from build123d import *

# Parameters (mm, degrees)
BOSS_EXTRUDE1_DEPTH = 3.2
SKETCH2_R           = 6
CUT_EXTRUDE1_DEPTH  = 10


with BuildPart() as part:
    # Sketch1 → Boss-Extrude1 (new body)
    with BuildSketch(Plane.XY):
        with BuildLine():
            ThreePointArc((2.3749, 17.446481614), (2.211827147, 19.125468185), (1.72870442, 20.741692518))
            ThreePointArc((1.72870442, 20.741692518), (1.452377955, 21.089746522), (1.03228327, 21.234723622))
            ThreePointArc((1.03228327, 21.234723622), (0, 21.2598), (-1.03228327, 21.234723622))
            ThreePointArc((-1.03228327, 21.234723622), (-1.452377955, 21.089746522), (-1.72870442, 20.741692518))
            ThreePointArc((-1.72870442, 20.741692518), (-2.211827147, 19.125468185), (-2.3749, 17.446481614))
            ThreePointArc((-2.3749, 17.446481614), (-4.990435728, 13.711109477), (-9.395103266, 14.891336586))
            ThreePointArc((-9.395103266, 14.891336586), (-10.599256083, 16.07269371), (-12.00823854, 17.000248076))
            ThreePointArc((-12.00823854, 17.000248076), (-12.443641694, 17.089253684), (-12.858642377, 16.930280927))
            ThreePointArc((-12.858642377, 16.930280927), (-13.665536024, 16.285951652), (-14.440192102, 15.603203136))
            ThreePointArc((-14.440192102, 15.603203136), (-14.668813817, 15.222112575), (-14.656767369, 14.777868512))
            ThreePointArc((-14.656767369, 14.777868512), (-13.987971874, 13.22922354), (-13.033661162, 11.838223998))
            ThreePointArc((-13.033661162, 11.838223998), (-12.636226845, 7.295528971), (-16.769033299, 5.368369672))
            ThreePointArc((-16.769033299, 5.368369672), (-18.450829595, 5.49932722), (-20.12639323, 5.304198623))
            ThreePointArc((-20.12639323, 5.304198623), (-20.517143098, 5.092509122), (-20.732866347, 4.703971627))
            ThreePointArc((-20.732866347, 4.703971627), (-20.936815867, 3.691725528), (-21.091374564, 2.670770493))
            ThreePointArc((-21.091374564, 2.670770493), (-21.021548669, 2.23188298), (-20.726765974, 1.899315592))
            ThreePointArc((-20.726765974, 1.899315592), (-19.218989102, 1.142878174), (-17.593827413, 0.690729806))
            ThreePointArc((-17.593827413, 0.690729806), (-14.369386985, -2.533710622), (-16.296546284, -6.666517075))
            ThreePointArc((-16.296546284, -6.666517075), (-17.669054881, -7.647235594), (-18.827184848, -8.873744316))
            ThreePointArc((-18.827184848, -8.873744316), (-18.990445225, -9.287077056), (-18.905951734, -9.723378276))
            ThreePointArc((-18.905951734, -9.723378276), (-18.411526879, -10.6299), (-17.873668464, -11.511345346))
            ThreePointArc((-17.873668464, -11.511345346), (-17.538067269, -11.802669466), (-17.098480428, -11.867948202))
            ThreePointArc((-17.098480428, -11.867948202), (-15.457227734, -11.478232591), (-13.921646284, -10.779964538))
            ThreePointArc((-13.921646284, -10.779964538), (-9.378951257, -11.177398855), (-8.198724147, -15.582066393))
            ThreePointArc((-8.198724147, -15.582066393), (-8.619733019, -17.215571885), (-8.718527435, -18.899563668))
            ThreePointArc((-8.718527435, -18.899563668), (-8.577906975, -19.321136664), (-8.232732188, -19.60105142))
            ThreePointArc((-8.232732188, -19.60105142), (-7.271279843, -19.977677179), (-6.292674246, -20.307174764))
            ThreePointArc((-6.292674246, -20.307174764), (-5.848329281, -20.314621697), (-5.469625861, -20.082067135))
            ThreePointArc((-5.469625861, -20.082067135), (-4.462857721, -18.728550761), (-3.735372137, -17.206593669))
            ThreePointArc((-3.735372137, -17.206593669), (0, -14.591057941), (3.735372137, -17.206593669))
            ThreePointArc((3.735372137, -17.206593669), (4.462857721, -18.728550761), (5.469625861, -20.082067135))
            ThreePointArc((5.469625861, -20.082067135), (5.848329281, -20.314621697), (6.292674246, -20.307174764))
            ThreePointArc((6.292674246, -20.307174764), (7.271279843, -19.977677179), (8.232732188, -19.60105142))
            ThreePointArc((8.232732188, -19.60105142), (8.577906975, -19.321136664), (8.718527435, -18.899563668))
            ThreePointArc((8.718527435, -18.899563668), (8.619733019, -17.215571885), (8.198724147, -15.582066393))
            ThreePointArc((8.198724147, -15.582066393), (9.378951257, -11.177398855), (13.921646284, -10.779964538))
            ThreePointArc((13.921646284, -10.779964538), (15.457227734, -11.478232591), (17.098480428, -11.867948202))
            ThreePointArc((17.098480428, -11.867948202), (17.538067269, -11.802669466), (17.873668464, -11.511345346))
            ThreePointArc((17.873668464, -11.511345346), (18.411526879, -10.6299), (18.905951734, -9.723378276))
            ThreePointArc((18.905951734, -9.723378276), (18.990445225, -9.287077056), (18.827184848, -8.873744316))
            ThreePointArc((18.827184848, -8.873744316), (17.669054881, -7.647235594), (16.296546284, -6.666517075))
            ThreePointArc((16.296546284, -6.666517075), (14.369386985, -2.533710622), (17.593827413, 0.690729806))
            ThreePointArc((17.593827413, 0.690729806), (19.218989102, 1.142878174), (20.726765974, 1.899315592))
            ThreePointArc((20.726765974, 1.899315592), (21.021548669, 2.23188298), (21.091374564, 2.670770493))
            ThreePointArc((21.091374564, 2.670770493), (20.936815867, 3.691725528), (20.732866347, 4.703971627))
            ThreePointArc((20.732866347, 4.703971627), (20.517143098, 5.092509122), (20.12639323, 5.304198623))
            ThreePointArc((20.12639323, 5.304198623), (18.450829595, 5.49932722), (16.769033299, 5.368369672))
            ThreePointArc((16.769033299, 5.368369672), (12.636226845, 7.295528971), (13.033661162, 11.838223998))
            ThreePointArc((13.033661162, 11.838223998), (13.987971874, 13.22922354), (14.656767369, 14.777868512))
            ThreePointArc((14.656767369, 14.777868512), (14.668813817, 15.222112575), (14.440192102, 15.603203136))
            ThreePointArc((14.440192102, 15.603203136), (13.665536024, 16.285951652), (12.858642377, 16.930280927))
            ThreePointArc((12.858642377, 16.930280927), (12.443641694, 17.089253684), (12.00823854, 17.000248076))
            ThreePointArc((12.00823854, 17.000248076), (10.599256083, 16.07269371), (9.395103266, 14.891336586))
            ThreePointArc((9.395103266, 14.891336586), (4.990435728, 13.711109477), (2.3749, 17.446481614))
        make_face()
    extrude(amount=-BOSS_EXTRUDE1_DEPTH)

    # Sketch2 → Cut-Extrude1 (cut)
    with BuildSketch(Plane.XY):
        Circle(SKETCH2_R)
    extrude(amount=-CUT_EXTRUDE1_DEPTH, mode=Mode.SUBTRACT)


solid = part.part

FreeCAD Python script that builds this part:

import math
import FreeCAD as App
import Part
import Sketcher
Q = App.Units.Quantity

doc = App.newDocument("Part")
body = doc.addObject("PartDesign::Body", "Body")

sketch1 = doc.addObject("Sketcher::SketchObject", "Sketch")
body.addObject(sketch1)
sketch1.AttachmentSupport = (doc.XY_Plane, [""])
sketch1.MapMode = "FlatFace"
sketch1.addGeometry(Part.ArcOfCircle(Part.Circle(App.Vector(-6.35, 17.446482, 0), App.Vector(0, 0, 1), 8.7249), math.radians(0), math.radians(22.189984)), False)
sketch1.addGeometry(Part.ArcOfCircle(Part.Circle(App.Vector(0.993742, 20.44191, 0), App.Vector(0, 0, 1), 0.79375), math.radians(22.189984), math.radians(87.216872)), False)
sketch1.addGeometry(Part.ArcOfCircle(Part.Circle(App.Vector(0, 0, 0), App.Vector(0, 0, 1), 21.2598), math.radians(87.216872), math.radians(92.783128)), False)
sketch1.addGeometry(Part.ArcOfCircle(Part.Circle(App.Vector(-0.993742, 20.44191, 0), App.Vector(0, 0, 1), 0.79375), math.radians(92.783128), math.radians(157.810016)), False)
sketch1.addGeometry(Part.ArcOfCircle(Part.Circle(App.Vector(6.35, 17.446482, 0), App.Vector(0, 0, 1), 8.7249), math.radians(157.810016), math.radians(180)), False)
sketch1.addGeometry(Part.ArcOfCircle(Part.Circle(App.Vector(-6.35, 17.446482, 0), App.Vector(0, 0, 1), 3.9751), math.radians(-140), math.radians(0)), False)
sketch1.addGeometry(Part.ArcOfCircle(Part.Circle(App.Vector(-16.078764, 9.283079, 0), App.Vector(0, 0, 1), 8.7249), math.radians(40), math.radians(62.189984)), False)
sketch1.addGeometry(Part.ArcOfCircle(Part.Circle(App.Vector(-12.378556, 16.298177, 0), App.Vector(0, 0, 1), 0.79375), math.radians(62.189984), math.radians(127.216872)), False)
sketch1.addGeometry(Part.ArcOfCircle(Part.Circle(App.Vector(0, 0, 0), App.Vector(0, 0, 1), 21.2598), math.radians(127.216872), math.radians(132.783128)), False)
sketch1.addGeometry(Part.ArcOfCircle(Part.Circle(App.Vector(-13.901057, 15.020646, 0), App.Vector(0, 0, 1), 0.79375), math.radians(132.783128), math.radians(197.810016)), False)
sketch1.addGeometry(Part.ArcOfCircle(Part.Circle(App.Vector(-6.35, 17.446482, 0), App.Vector(0, 0, 1), 8.7249), math.radians(-162.189984), math.radians(-140)), False)
sketch1.addGeometry(Part.ArcOfCircle(Part.Circle(App.Vector(-16.078764, 9.283079, 0), App.Vector(0, 0, 1), 3.9751), math.radians(-100), math.radians(40)), False)
sketch1.addGeometry(Part.ArcOfCircle(Part.Circle(App.Vector(-18.284096, -3.22398, 0), App.Vector(0, 0, 1), 8.7249), math.radians(80), math.radians(102.189984)), False)
sketch1.addGeometry(Part.ArcOfCircle(Part.Circle(App.Vector(-19.95879, 4.528345, 0), App.Vector(0, 0, 1), 0.79375), math.radians(102.189984), math.radians(167.216872)), False)
sketch1.addGeometry(Part.ArcOfCircle(Part.Circle(App.Vector(0, 0, 0), App.Vector(0, 0, 1), 21.2598), math.radians(167.216872), math.radians(172.783128)), False)
sketch1.addGeometry(Part.ArcOfCircle(Part.Circle(App.Vector(-20.303913, 2.571055, 0), App.Vector(0, 0, 1), 0.79375), math.radians(172.783128), math.radians(237.810016)), False)
sketch1.addGeometry(Part.ArcOfCircle(Part.Circle(App.Vector(-16.078764, 9.283079, 0), App.Vector(0, 0, 1), 8.7249), math.radians(-122.189984), math.radians(-100)), False)
sketch1.addGeometry(Part.ArcOfCircle(Part.Circle(App.Vector(-18.284096, -3.223979, 0), App.Vector(0, 0, 1), 3.9751), math.radians(-60), math.radians(80)), False)
sketch1.addGeometry(Part.ArcOfCircle(Part.Circle(App.Vector(-11.934096, -14.222502, 0), App.Vector(0, 0, 1), 8.7249), math.radians(120), math.radians(142.189984)), False)
sketch1.addGeometry(Part.ArcOfCircle(Part.Circle(App.Vector(-18.200084, -9.360349, 0), App.Vector(0, 0, 1), 0.79375), math.radians(142.189984), math.radians(207.216872)), False)
sketch1.addGeometry(Part.ArcOfCircle(Part.Circle(App.Vector(0, 0, 0), App.Vector(0, 0, 1), 21.2598), math.radians(-152.783128), math.radians(-147.216872)), False)
sketch1.addGeometry(Part.ArcOfCircle(Part.Circle(App.Vector(-17.206342, -11.081561, 0), App.Vector(0, 0, 1), 0.79375), math.radians(-147.216872), math.radians(-82.189984)), False)
sketch1.addGeometry(Part.ArcOfCircle(Part.Circle(App.Vector(-18.284096, -3.22398, 0), App.Vector(0, 0, 1), 8.7249), math.radians(-82.189984), math.radians(-60)), False)
sketch1.addGeometry(Part.ArcOfCircle(Part.Circle(App.Vector(-11.934096, -14.222502, 0), App.Vector(0, 0, 1), 3.9751), math.radians(-20), math.radians(120)), False)
sketch1.addGeometry(Part.ArcOfCircle(Part.Circle(App.Vector(0, -18.566158, 0), App.Vector(0, 0, 1), 8.7249), math.radians(160), math.radians(182.189984)), False)
sketch1.addGeometry(Part.ArcOfCircle(Part.Circle(App.Vector(-7.925357, -18.869232, 0), App.Vector(0, 0, 1), 0.79375), math.radians(-177.810016), math.radians(-112.783128)), False)
sketch1.addGeometry(Part.ArcOfCircle(Part.Circle(App.Vector(0, 0.000001, 0), App.Vector(0, 0, 1), 21.259801), math.radians(-112.783128), math.radians(-107.216872)), False)
sketch1.addGeometry(Part.ArcOfCircle(Part.Circle(App.Vector(-6.057733, -19.548992, 0), App.Vector(0, 0, 1), 0.79375), math.radians(-107.216872), math.radians(-42.189984)), False)
sketch1.addGeometry(Part.ArcOfCircle(Part.Circle(App.Vector(-11.934096, -14.222502, 0), App.Vector(0, 0, 1), 8.7249), math.radians(-42.189984), math.radians(-20)), False)
sketch1.addGeometry(Part.ArcOfCircle(Part.Circle(App.Vector(0, -18.566158, 0), App.Vector(0, 0, 1), 3.9751), math.radians(20), math.radians(160)), False)
sketch1.addGeometry(Part.ArcOfCircle(Part.Circle(App.Vector(11.934096, -14.222502, 0), App.Vector(0, 0, 1), 8.7249), math.radians(-160), math.radians(-137.810016)), False)
sketch1.addGeometry(Part.ArcOfCircle(Part.Circle(App.Vector(6.057733, -19.548992, 0), App.Vector(0, 0, 1), 0.79375), math.radians(-137.810016), math.radians(-72.783128)), False)
sketch1.addGeometry(Part.ArcOfCircle(Part.Circle(App.Vector(0, 0.000001, 0), App.Vector(0, 0, 1), 21.259801), math.radians(-72.783128), math.radians(-67.216872)), False)
sketch1.addGeometry(Part.ArcOfCircle(Part.Circle(App.Vector(7.925357, -18.869232, 0), App.Vector(0, 0, 1), 0.79375), math.radians(-67.216872), math.radians(-2.189984)), False)
sketch1.addGeometry(Part.ArcOfCircle(Part.Circle(App.Vector(0, -18.566158, 0), App.Vector(0, 0, 1), 8.7249), math.radians(-2.189984), math.radians(20)), False)
sketch1.addGeometry(Part.ArcOfCircle(Part.Circle(App.Vector(11.934096, -14.222502, 0), App.Vector(0, 0, 1), 3.9751), math.radians(60), math.radians(200)), False)
sketch1.addGeometry(Part.ArcOfCircle(Part.Circle(App.Vector(18.284096, -3.22398, 0), App.Vector(0, 0, 1), 8.7249), math.radians(-120), math.radians(-97.810016)), False)
sketch1.addGeometry(Part.ArcOfCircle(Part.Circle(App.Vector(17.206342, -11.081561, 0), App.Vector(0, 0, 1), 0.79375), math.radians(-97.810016), math.radians(-32.783128)), False)
sketch1.addGeometry(Part.ArcOfCircle(Part.Circle(App.Vector(0, 0, 0), App.Vector(0, 0, 1), 21.2598), math.radians(-32.783128), math.radians(-27.216872)), False)
sketch1.addGeometry(Part.ArcOfCircle(Part.Circle(App.Vector(18.200084, -9.360349, 0), App.Vector(0, 0, 1), 0.79375), math.radians(-27.216872), math.radians(37.810016)), False)
sketch1.addGeometry(Part.ArcOfCircle(Part.Circle(App.Vector(11.934096, -14.222502, 0), App.Vector(0, 0, 1), 8.7249), math.radians(37.810016), math.radians(60)), False)
sketch1.addGeometry(Part.ArcOfCircle(Part.Circle(App.Vector(18.284096, -3.223979, 0), App.Vector(0, 0, 1), 3.9751), math.radians(100), math.radians(240)), False)
sketch1.addGeometry(Part.ArcOfCircle(Part.Circle(App.Vector(16.078764, 9.283079, 0), App.Vector(0, 0, 1), 8.7249), math.radians(-80), math.radians(-57.810016)), False)
sketch1.addGeometry(Part.ArcOfCircle(Part.Circle(App.Vector(20.303913, 2.571055, 0), App.Vector(0, 0, 1), 0.79375), math.radians(-57.810016), math.radians(7.216872)), False)
sketch1.addGeometry(Part.ArcOfCircle(Part.Circle(App.Vector(0, 0, 0), App.Vector(0, 0, 1), 21.2598), math.radians(7.216872), math.radians(12.783128)), False)
sketch1.addGeometry(Part.ArcOfCircle(Part.Circle(App.Vector(19.95879, 4.528345, 0), App.Vector(0, 0, 1), 0.79375), math.radians(12.783128), math.radians(77.810016)), False)
sketch1.addGeometry(Part.ArcOfCircle(Part.Circle(App.Vector(18.284096, -3.22398, 0), App.Vector(0, 0, 1), 8.7249), math.radians(77.810016), math.radians(100)), False)
sketch1.addGeometry(Part.ArcOfCircle(Part.Circle(App.Vector(16.078764, 9.283079, 0), App.Vector(0, 0, 1), 3.9751), math.radians(140), math.radians(280)), False)
sketch1.addGeometry(Part.ArcOfCircle(Part.Circle(App.Vector(6.35, 17.446482, 0), App.Vector(0, 0, 1), 8.7249), math.radians(-40), math.radians(-17.810016)), False)
sketch1.addGeometry(Part.ArcOfCircle(Part.Circle(App.Vector(13.901057, 15.020646, 0), App.Vector(0, 0, 1), 0.79375), math.radians(-17.810016), math.radians(47.216872)), False)
sketch1.addGeometry(Part.ArcOfCircle(Part.Circle(App.Vector(0, 0, 0), App.Vector(0, 0, 1), 21.2598), math.radians(47.216872), math.radians(52.783128)), False)
sketch1.addGeometry(Part.ArcOfCircle(Part.Circle(App.Vector(12.378556, 16.298177, 0), App.Vector(0, 0, 1), 0.79375), math.radians(52.783128), math.radians(117.810016)), False)
sketch1.addGeometry(Part.ArcOfCircle(Part.Circle(App.Vector(16.078764, 9.283079, 0), App.Vector(0, 0, 1), 8.7249), math.radians(117.810016), math.radians(140)), False)
sketch1.addGeometry(Part.ArcOfCircle(Part.Circle(App.Vector(6.35, 17.446482, 0), App.Vector(0, 0, 1), 3.9751), math.radians(180), math.radians(320)), False)
sketch1.addConstraint(Sketcher.Constraint("Tangent", 0, 2, 1, 1))
sketch1.addConstraint(Sketcher.Constraint("Tangent", 1, 2, 2, 1))
sketch1.addConstraint(Sketcher.Constraint("Tangent", 2, 2, 3, 1))
sketch1.addConstraint(Sketcher.Constraint("Tangent", 3, 2, 4, 1))
sketch1.addConstraint(Sketcher.Constraint("Tangent", 4, 2, 5, 2))
sketch1.addConstraint(Sketcher.Constraint("Tangent", 5, 1, 6, 1))
sketch1.addConstraint(Sketcher.Constraint("Tangent", 6, 2, 7, 1))
sketch1.addConstraint(Sketcher.Constraint("Tangent", 7, 2, 8, 1))
sketch1.addConstraint(Sketcher.Constraint("Tangent", 8, 2, 9, 1))
sketch1.addConstraint(Sketcher.Constraint("Tangent", 9, 2, 10, 1))
sketch1.addConstraint(Sketcher.Constraint("Tangent", 10, 2, 11, 2))
sketch1.addConstraint(Sketcher.Constraint("Tangent", 11, 1, 12, 1))
sketch1.addConstraint(Sketcher.Constraint("Tangent", 12, 2, 13, 1))
sketch1.addConstraint(Sketcher.Constraint("Tangent", 13, 2, 14, 1))
sketch1.addConstraint(Sketcher.Constraint("Tangent", 14, 2, 15, 1))
sketch1.addConstraint(Sketcher.Constraint("Tangent", 15, 2, 16, 1))
sketch1.addConstraint(Sketcher.Constraint("Tangent", 16, 2, 17, 2))
sketch1.addConstraint(Sketcher.Constraint("Tangent", 17, 1, 18, 1))
sketch1.addConstraint(Sketcher.Constraint("Tangent", 18, 2, 19, 1))
sketch1.addConstraint(Sketcher.Constraint("Tangent", 19, 2, 20, 1))
sketch1.addConstraint(Sketcher.Constraint("Tangent", 20, 2, 21, 1))
sketch1.addConstraint(Sketcher.Constraint("Tangent", 21, 2, 22, 1))
sketch1.addConstraint(Sketcher.Constraint("Tangent", 22, 2, 23, 2))
sketch1.addConstraint(Sketcher.Constraint("Tangent", 23, 1, 24, 1))
sketch1.addConstraint(Sketcher.Constraint("Tangent", 24, 2, 25, 1))
sketch1.addConstraint(Sketcher.Constraint("Tangent", 25, 2, 26, 1))
sketch1.addConstraint(Sketcher.Constraint("Tangent", 26, 2, 27, 1))
sketch1.addConstraint(Sketcher.Constraint("Tangent", 27, 2, 28, 1))
sketch1.addConstraint(Sketcher.Constraint("Tangent", 28, 2, 29, 2))
sketch1.addConstraint(Sketcher.Constraint("Tangent", 29, 1, 30, 1))
sketch1.addConstraint(Sketcher.Constraint("Tangent", 30, 2, 31, 1))
sketch1.addConstraint(Sketcher.Constraint("Tangent", 31, 2, 32, 1))
sketch1.addConstraint(Sketcher.Constraint("Tangent", 32, 2, 33, 1))
sketch1.addConstraint(Sketcher.Constraint("Tangent", 33, 2, 34, 1))
sketch1.addConstraint(Sketcher.Constraint("Tangent", 34, 2, 35, 2))
sketch1.addConstraint(Sketcher.Constraint("Tangent", 35, 1, 36, 1))
sketch1.addConstraint(Sketcher.Constraint("Tangent", 36, 2, 37, 1))
sketch1.addConstraint(Sketcher.Constraint("Tangent", 37, 2, 38, 1))
sketch1.addConstraint(Sketcher.Constraint("Tangent", 38, 2, 39, 1))
sketch1.addConstraint(Sketcher.Constraint("Tangent", 39, 2, 40, 1))
sketch1.addConstraint(Sketcher.Constraint("Tangent", 40, 2, 41, 2))
sketch1.addConstraint(Sketcher.Constraint("Tangent", 41, 1, 42, 1))
sketch1.addConstraint(Sketcher.Constraint("Tangent", 42, 2, 43, 1))
sketch1.addConstraint(Sketcher.Constraint("Tangent", 43, 2, 44, 1))
sketch1.addConstraint(Sketcher.Constraint("Tangent", 44, 2, 45, 1))
sketch1.addConstraint(Sketcher.Constraint("Tangent", 45, 2, 46, 1))
sketch1.addConstraint(Sketcher.Constraint("Tangent", 46, 2, 47, 2))
sketch1.addConstraint(Sketcher.Constraint("Tangent", 47, 1, 48, 1))
sketch1.addConstraint(Sketcher.Constraint("Tangent", 48, 2, 49, 1))
sketch1.addConstraint(Sketcher.Constraint("Tangent", 49, 2, 50, 1))
sketch1.addConstraint(Sketcher.Constraint("Tangent", 50, 2, 51, 1))
sketch1.addConstraint(Sketcher.Constraint("Tangent", 51, 2, 52, 1))
sketch1.addConstraint(Sketcher.Constraint("Tangent", 52, 2, 53, 2))
sketch1.addConstraint(Sketcher.Constraint("Tangent", 53, 1, 0, 1))
sketch1.addConstraint(Sketcher.Constraint("Coincident", 2, 3, -1, 1))
sketch1.addConstraint(Sketcher.Constraint("Coincident", 8, 3, -1, 1))
sketch1.addConstraint(Sketcher.Constraint("Coincident", 14, 3, -1, 1))
sketch1.addConstraint(Sketcher.Constraint("Coincident", 20, 3, -1, 1))
sketch1.addConstraint(Sketcher.Constraint("Coincident", 26, 3, -1, 1))
sketch1.addConstraint(Sketcher.Constraint("Coincident", 32, 3, -1, 1))
sketch1.addConstraint(Sketcher.Constraint("Coincident", 38, 3, -1, 1))
sketch1.addConstraint(Sketcher.Constraint("Coincident", 44, 3, -1, 1))
sketch1.addConstraint(Sketcher.Constraint("Coincident", 50, 3, -1, 1))
sketch1.addConstraint(Sketcher.Constraint("Coincident", 5, 3, 0, 3))
sketch1.addConstraint(Sketcher.Constraint("Coincident", 10, 3, 0, 3))
sketch1.addConstraint(Sketcher.Constraint("Coincident", 11, 3, 6, 3))
sketch1.addConstraint(Sketcher.Constraint("Coincident", 16, 3, 6, 3))
sketch1.addConstraint(Sketcher.Constraint("Coincident", 17, 3, 12, 3))
sketch1.addConstraint(Sketcher.Constraint("Coincident", 22, 3, 12, 3))
sketch1.addConstraint(Sketcher.Constraint("Coincident", 23, 3, 18, 3))
sketch1.addConstraint(Sketcher.Constraint("Coincident", 28, 3, 18, 3))
sketch1.addConstraint(Sketcher.Constraint("Coincident", 29, 3, 24, 3))
sketch1.addConstraint(Sketcher.Constraint("Coincident", 34, 3, 24, 3))
sketch1.addConstraint(Sketcher.Constraint("Coincident", 35, 3, 30, 3))
sketch1.addConstraint(Sketcher.Constraint("Coincident", 40, 3, 30, 3))
sketch1.addConstraint(Sketcher.Constraint("Coincident", 41, 3, 36, 3))
sketch1.addConstraint(Sketcher.Constraint("Coincident", 46, 3, 36, 3))
sketch1.addConstraint(Sketcher.Constraint("Coincident", 47, 3, 42, 3))
sketch1.addConstraint(Sketcher.Constraint("Coincident", 48, 3, 4, 3))
sketch1.addConstraint(Sketcher.Constraint("Coincident", 52, 3, 42, 3))
sketch1.addConstraint(Sketcher.Constraint("Coincident", 53, 3, 4, 3))
sketch1.addConstraint(Sketcher.Constraint("Equal", 1, 3))
sketch1.addConstraint(Sketcher.Constraint("Equal", 0, 4))
sketch1.addConstraint(Sketcher.Constraint("Equal", 4, 6))
sketch1.addConstraint(Sketcher.Constraint("Equal", 3, 7))
sketch1.addConstraint(Sketcher.Constraint("Equal", 2, 8))
sketch1.addConstraint(Sketcher.Constraint("Equal", 7, 9))
sketch1.addConstraint(Sketcher.Constraint("Equal", 6, 10))
sketch1.addConstraint(Sketcher.Constraint("Equal", 10, 12))
sketch1.addConstraint(Sketcher.Constraint("Equal", 9, 13))
sketch1.addConstraint(Sketcher.Constraint("Equal", 8, 14))
sketch1.addConstraint(Sketcher.Constraint("Equal", 13, 15))
sketch1.addConstraint(Sketcher.Constraint("Equal", 12, 16))
sketch1.addConstraint(Sketcher.Constraint("Equal", 16, 18))
sketch1.addConstraint(Sketcher.Constraint("Equal", 15, 19))
sketch1.addConstraint(Sketcher.Constraint("Equal", 14, 20))
sketch1.addConstraint(Sketcher.Constraint("Equal", 19, 21))
sketch1.addConstraint(Sketcher.Constraint("Equal", 18, 22))
sketch1.addConstraint(Sketcher.Constraint("Equal", 22, 24))
sketch1.addConstraint(Sketcher.Constraint("Equal", 21, 25))
sketch1.addConstraint(Sketcher.Constraint("Equal", 20, 26))
sketch1.addConstraint(Sketcher.Constraint("Equal", 25, 27))
sketch1.addConstraint(Sketcher.Constraint("Equal", 24, 28))
sketch1.addConstraint(Sketcher.Constraint("Equal", 28, 30))
sketch1.addConstraint(Sketcher.Constraint("Equal", 27, 31))
sketch1.addConstraint(Sketcher.Constraint("Equal", 26, 32))
sketch1.addConstraint(Sketcher.Constraint("Equal", 31, 33))
sketch1.addConstraint(Sketcher.Constraint("Equal", 30, 34))
sketch1.addConstraint(Sketcher.Constraint("Equal", 34, 36))
sketch1.addConstraint(Sketcher.Constraint("Equal", 33, 37))
sketch1.addConstraint(Sketcher.Constraint("Equal", 32, 38))
sketch1.addConstraint(Sketcher.Constraint("Equal", 37, 39))
sketch1.addConstraint(Sketcher.Constraint("Equal", 36, 40))
sketch1.addConstraint(Sketcher.Constraint("Equal", 40, 42))
sketch1.addConstraint(Sketcher.Constraint("Equal", 39, 43))
sketch1.addConstraint(Sketcher.Constraint("Equal", 38, 44))
sketch1.addConstraint(Sketcher.Constraint("Equal", 43, 45))
sketch1.addConstraint(Sketcher.Constraint("Equal", 42, 46))
sketch1.addConstraint(Sketcher.Constraint("Equal", 46, 48))
sketch1.addConstraint(Sketcher.Constraint("Equal", 45, 49))
sketch1.addConstraint(Sketcher.Constraint("Equal", 44, 50))
sketch1.addConstraint(Sketcher.Constraint("Equal", 49, 51))
sketch1.addConstraint(Sketcher.Constraint("Symmetric", 0, 3, 4, 3, -2))
sketch1.addConstraint(Sketcher.Constraint("Symmetric", 18, 3, 30, 3, -2))
sketch1.addConstraint(Sketcher.Constraint("Horizontal", 22, 3, 36, 3))
sketch1.addConstraint(Sketcher.Constraint("Radius", 1, Q("0.03125 in")))
sketch1.addConstraint(Sketcher.Constraint("Radius", 2, Q("0.837 in")))
sketch1.addConstraint(Sketcher.Constraint("Radius", 0, Q("0.3435 in")))
sketch1.addConstraint(Sketcher.Constraint("Radius", 5, Q("0.1565 in")))
sketch1.addConstraint(Sketcher.Constraint("DistanceY", -1, 1, 12, 2, Q("5.304199 mm")))
sketch1.addConstraint(Sketcher.Constraint("DistanceY", -1, 1, 0, 3, Q("17.446482 mm")))
sketch1.addConstraint(Sketcher.Constraint("DistanceY", -1, 1, 6, 3, Q("9.283079 mm")))
sketch1.addConstraint(Sketcher.Constraint("DistanceY", 19, 3, -1, 1, Q("9.360349 mm")))
pad1 = doc.addObject("PartDesign::Pad", "Pad")
body.addObject(pad1)
pad1.Profile = sketch1
pad1.Length = 3.2
pad1.Reversed = True

sketch2 = doc.addObject("Sketcher::SketchObject", "Sketch001")
body.addObject(sketch2)
sketch2.AttachmentSupport = (doc.XY_Plane, [""])
sketch2.MapMode = "FlatFace"
sketch2.addGeometry(Part.Circle(App.Vector(0, 0, 0), App.Vector(0, 0, 1), 6), False)
sketch2.addConstraint(Sketcher.Constraint("Coincident", 0, 3, -1, 1))
sketch2.addConstraint(Sketcher.Constraint("Diameter", 0, Q("12 mm")))
pocket1 = doc.addObject("PartDesign::Pocket", "Pocket")
body.addObject(pocket1)
pocket1.Profile = sketch2
pocket1.Length = 10

doc.recompute()
